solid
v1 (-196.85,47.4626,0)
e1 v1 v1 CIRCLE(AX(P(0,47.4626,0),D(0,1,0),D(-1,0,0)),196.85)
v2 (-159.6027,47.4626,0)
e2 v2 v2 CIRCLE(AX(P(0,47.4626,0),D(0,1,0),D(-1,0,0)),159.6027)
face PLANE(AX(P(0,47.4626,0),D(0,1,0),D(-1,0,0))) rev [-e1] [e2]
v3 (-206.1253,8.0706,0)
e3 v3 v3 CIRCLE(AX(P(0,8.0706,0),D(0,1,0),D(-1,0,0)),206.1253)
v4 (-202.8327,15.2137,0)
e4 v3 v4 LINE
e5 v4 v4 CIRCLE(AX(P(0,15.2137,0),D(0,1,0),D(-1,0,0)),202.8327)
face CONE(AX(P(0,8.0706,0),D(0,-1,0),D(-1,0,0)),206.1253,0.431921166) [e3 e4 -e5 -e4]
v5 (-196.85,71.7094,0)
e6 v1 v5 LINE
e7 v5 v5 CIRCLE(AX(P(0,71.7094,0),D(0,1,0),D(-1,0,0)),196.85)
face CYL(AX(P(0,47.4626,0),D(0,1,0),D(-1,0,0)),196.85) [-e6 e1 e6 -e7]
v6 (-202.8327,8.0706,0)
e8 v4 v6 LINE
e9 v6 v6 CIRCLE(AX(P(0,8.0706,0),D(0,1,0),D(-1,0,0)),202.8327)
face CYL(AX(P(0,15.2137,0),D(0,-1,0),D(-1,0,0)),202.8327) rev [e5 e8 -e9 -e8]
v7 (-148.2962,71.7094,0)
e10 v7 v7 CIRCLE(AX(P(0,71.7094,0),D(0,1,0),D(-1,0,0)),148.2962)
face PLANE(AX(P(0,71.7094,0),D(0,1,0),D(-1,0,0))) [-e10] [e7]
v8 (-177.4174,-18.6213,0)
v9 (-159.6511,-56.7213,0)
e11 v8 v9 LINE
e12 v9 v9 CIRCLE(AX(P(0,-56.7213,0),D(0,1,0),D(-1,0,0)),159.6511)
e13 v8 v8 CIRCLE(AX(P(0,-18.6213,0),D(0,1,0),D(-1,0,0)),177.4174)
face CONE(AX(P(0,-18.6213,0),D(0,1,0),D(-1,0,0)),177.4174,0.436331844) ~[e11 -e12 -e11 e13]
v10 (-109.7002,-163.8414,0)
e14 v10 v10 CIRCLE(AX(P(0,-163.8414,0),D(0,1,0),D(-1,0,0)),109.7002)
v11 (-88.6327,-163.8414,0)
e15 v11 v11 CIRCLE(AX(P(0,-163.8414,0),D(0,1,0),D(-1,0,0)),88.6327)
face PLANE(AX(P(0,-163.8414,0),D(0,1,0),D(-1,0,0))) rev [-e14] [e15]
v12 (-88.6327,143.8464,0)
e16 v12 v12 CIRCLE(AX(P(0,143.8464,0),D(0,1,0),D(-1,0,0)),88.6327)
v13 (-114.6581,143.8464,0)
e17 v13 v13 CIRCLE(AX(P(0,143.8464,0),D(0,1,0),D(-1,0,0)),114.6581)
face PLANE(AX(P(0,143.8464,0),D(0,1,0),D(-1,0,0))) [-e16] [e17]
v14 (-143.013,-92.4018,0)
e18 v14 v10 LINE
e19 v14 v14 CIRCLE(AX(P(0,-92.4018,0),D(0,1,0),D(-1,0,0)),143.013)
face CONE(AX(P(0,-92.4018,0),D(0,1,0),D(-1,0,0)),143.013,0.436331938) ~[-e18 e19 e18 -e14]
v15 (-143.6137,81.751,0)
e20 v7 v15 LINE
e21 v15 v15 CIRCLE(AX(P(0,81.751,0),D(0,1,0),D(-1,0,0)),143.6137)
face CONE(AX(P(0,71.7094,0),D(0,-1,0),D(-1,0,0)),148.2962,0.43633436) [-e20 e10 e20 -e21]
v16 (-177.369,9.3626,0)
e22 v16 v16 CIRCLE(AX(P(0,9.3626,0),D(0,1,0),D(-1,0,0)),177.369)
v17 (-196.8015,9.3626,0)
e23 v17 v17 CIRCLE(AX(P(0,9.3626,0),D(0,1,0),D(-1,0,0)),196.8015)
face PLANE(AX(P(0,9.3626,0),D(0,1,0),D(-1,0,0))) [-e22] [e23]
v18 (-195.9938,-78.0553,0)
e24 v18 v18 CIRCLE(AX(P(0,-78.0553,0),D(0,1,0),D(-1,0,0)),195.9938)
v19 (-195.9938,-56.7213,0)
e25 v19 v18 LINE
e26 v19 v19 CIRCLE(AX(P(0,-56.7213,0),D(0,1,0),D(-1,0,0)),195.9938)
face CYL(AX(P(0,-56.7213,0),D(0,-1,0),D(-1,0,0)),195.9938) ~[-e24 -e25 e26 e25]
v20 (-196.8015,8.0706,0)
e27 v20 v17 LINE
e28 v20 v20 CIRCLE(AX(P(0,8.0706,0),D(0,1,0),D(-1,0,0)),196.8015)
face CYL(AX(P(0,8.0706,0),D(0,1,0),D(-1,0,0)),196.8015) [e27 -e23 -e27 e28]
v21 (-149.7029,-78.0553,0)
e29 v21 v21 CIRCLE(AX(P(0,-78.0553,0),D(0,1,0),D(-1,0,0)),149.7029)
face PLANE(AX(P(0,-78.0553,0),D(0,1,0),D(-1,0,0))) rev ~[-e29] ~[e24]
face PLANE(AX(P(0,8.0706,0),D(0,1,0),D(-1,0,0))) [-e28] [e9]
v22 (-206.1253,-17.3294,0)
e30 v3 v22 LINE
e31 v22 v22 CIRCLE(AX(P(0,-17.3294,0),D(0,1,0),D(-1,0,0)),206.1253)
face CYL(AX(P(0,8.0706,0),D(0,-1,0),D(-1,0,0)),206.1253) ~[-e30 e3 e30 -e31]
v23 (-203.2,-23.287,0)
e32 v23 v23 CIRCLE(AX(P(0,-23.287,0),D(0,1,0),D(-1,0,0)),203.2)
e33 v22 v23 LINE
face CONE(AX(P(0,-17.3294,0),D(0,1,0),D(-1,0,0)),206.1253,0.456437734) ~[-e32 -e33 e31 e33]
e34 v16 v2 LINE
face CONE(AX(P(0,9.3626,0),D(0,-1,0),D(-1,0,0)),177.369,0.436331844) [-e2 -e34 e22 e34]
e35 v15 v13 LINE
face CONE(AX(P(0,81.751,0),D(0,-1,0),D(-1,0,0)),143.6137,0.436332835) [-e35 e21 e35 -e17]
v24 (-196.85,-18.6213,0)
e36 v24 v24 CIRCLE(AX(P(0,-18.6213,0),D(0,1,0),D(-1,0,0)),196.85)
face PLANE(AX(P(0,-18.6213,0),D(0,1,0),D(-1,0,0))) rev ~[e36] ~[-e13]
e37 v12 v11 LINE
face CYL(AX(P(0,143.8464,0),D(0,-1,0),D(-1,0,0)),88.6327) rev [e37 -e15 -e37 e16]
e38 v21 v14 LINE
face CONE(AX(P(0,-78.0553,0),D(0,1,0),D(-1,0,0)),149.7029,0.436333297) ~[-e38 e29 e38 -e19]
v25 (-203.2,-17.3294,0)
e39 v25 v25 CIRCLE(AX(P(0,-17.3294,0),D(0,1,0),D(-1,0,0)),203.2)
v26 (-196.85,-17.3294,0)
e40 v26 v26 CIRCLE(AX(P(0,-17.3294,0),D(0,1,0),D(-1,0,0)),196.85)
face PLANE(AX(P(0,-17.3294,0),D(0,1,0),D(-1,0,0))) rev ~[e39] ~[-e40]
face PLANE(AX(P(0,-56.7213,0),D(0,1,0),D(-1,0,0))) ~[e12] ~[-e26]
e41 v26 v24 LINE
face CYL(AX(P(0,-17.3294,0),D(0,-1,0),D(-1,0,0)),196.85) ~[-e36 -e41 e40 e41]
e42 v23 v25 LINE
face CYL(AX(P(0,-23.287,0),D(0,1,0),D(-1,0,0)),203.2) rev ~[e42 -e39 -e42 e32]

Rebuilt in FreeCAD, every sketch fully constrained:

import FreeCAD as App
import Part
import Sketcher

V = App.Vector
Q = App.Units.Quantity

doc = App.newDocument("Part")
body = doc.addObject("PartDesign::Body", "Body")

sketch1 = body.newObject("Sketcher::SketchObject", "Sketch")
sketch1.AttachmentSupport = (doc.getObject("XY_Plane"), [""])
sketch1.MapMode = "FlatFace"
sketch1.addGeometry(Part.LineSegment(V(-202.8, 15.2, 0), V(-206.1, 8.1, 0)), False)
sketch1.addGeometry(Part.LineSegment(V(-206.1, 8.1, 0), V(-206.1, -17.3, 0)), False)
sketch1.addGeometry(Part.LineSegment(V(-206.1, -17.3, 0), V(-203.2, -23.3, 0)), False)
sketch1.addGeometry(Part.LineSegment(V(-203.2, -23.3, 0), V(-203.2, -17.3, 0)), False)
sketch1.addGeometry(Part.LineSegment(V(-203.2, -17.3, 0), V(-196.8, -17.3, 0)), False)
sketch1.addGeometry(Part.LineSegment(V(-196.8, -17.3, 0), V(-196.8, -18.6, 0)), False)
sketch1.addGeometry(Part.LineSegment(V(-196.8, -18.6, 0), V(-177.4, -18.6, 0)), False)
sketch1.addGeometry(Part.LineSegment(V(-177.4, -18.6, 0), V(-159.7, -56.7, 0)), False)
sketch1.addGeometry(Part.LineSegment(V(-159.7, -56.7, 0), V(-196, -56.7, 0)), False)
sketch1.addGeometry(Part.LineSegment(V(-196, -56.7, 0), V(-196, -78.1, 0)), False)
sketch1.addGeometry(Part.LineSegment(V(-196, -78.1, 0), V(-149.7, -78.1, 0)), False)
sketch1.addGeometry(Part.LineSegment(V(-149.7, -78.1, 0), V(-143, -92.4, 0)), False)
sketch1.addGeometry(Part.LineSegment(V(-143, -92.4, 0), V(-109.7, -163.8, 0)), False)
sketch1.addGeometry(Part.LineSegment(V(-109.7, -163.8, 0), V(-88.6, -163.8, 0)), False)
sketch1.addGeometry(Part.LineSegment(V(-88.6, -163.8, 0), V(-88.6, 143.8, 0)), False)
sketch1.addGeometry(Part.LineSegment(V(-88.6, 143.8, 0), V(-114.7, 143.8, 0)), False)
sketch1.addGeometry(Part.LineSegment(V(-114.7, 143.8, 0), V(-143.6, 81.8, 0)), False)
sketch1.addGeometry(Part.LineSegment(V(-143.6, 81.8, 0), V(-148.3, 71.7, 0)), False)
sketch1.addGeometry(Part.LineSegment(V(-148.3, 71.7, 0), V(-196.8, 71.7, 0)), False)
sketch1.addGeometry(Part.LineSegment(V(-196.8, 71.7, 0), V(-196.8, 47.5, 0)), False)
sketch1.addGeometry(Part.LineSegment(V(-196.8, 47.5, 0), V(-159.6, 47.5, 0)), False)
sketch1.addGeometry(Part.LineSegment(V(-159.6, 47.5, 0), V(-177.4, 9.4, 0)), False)
sketch1.addGeometry(Part.LineSegment(V(-177.4, 9.4, 0), V(-196.8, 9.4, 0)), False)
sketch1.addGeometry(Part.LineSegment(V(-196.8, 9.4, 0), V(-196.8, 8.1, 0)), False)
sketch1.addGeometry(Part.LineSegment(V(-196.8, 8.1, 0), V(-202.8, 8.1, 0)), False)
sketch1.addGeometry(Part.LineSegment(V(-202.8, 8.1, 0), V(-202.8, 15.2, 0)), False)
sketch1.addConstraint(Sketcher.Constraint("Coincident", 0, 2, 1, 1))
sketch1.addConstraint(Sketcher.Constraint("Coincident", 1, 2, 2, 1))
sketch1.addConstraint(Sketcher.Constraint("Coincident", 2, 2, 3, 1))
sketch1.addConstraint(Sketcher.Constraint("Coincident", 3, 2, 4, 1))
sketch1.addConstraint(Sketcher.Constraint("Coincident", 4, 2, 5, 1))
sketch1.addConstraint(Sketcher.Constraint("Coincident", 5, 2, 6, 1))
sketch1.addConstraint(Sketcher.Constraint("Coincident", 6, 2, 7, 1))
sketch1.addConstraint(Sketcher.Constraint("Coincident", 7, 2, 8, 1))
sketch1.addConstraint(Sketcher.Constraint("Coincident", 8, 2, 9, 1))
sketch1.addConstraint(Sketcher.Constraint("Coincident", 9, 2, 10, 1))
sketch1.addConstraint(Sketcher.Constraint("Coincident", 10, 2, 11, 1))
sketch1.addConstraint(Sketcher.Constraint("Coincident", 11, 2, 12, 1))
sketch1.addConstraint(Sketcher.Constraint("Coincident", 12, 2, 13, 1))
sketch1.addConstraint(Sketcher.Constraint("Coincident", 13, 2, 14, 1))
sketch1.addConstraint(Sketcher.Constraint("Coincident", 14, 2, 15, 1))
sketch1.addConstraint(Sketcher.Constraint("Coincident", 15, 2, 16, 1))
sketch1.addConstraint(Sketcher.Constraint("Coincident", 16, 2, 17, 1))
sketch1.addConstraint(Sketcher.Constraint("Coincident", 17, 2, 18, 1))
sketch1.addConstraint(Sketcher.Constraint("Coincident", 18, 2, 19, 1))
sketch1.addConstraint(Sketcher.Constraint("Coincident", 19, 2, 20, 1))
sketch1.addConstraint(Sketcher.Constraint("Coincident", 20, 2, 21, 1))
sketch1.addConstraint(Sketcher.Constraint("Coincident", 21, 2, 22, 1))
sketch1.addConstraint(Sketcher.Constraint("Coincident", 22, 2, 23, 1))
sketch1.addConstraint(Sketcher.Constraint("Coincident", 23, 2, 24, 1))
sketch1.addConstraint(Sketcher.Constraint("Coincident", 24, 2, 25, 1))
sketch1.addConstraint(Sketcher.Constraint("Coincident", 25, 2, 0, 1))
sketch1.addConstraint(Sketcher.Constraint("Vertical", 1))
sketch1.addConstraint(Sketcher.Constraint("Vertical", 3))
sketch1.addConstraint(Sketcher.Constraint("Horizontal", 4))
sketch1.addConstraint(Sketcher.Constraint("Vertical", 5))
sketch1.addConstraint(Sketcher.Constraint("Horizontal", 6))
sketch1.addConstraint(Sketcher.Constraint("Horizontal", 8))
sketch1.addConstraint(Sketcher.Constraint("Vertical", 9))
sketch1.addConstraint(Sketcher.Constraint("Horizontal", 10))
sketch1.addConstraint(Sketcher.Constraint("Horizontal", 13))
sketch1.addConstraint(Sketcher.Constraint("Vertical", 14))
sketch1.addConstraint(Sketcher.Constraint("Horizontal", 15))
sketch1.addConstraint(Sketcher.Constraint("Horizontal", 18))
sketch1.addConstraint(Sketcher.Constraint("Vertical", 19))
sketch1.addConstraint(Sketcher.Constraint("Horizontal", 20))
sketch1.addConstraint(Sketcher.Constraint("Horizontal", 22))
sketch1.addConstraint(Sketcher.Constraint("Vertical", 23))
sketch1.addConstraint(Sketcher.Constraint("Horizontal", 24))
sketch1.addConstraint(Sketcher.Constraint("Vertical", 25))
sketch1.addConstraint(Sketcher.Constraint("Parallel", 7, 11))
sketch1.addConstraint(Sketcher.Constraint("Parallel", 11, 12))
sketch1.addConstraint(Sketcher.Constraint("Parallel", 16, 17))
sketch1.addConstraint(Sketcher.Constraint("Parallel", 17, 21))
sketch1.addConstraint(Sketcher.Constraint("Horizontal", 1, 2, 3, 2))
sketch1.addConstraint(Sketcher.Constraint("Horizontal", 0, 2, 23, 2))
sketch1.addConstraint(Sketcher.Constraint("Vertical", 5, 2, 18, 2))
sketch1.addConstraint(Sketcher.Constraint("Equal", 6, 22))
sketch1.addConstraint(Sketcher.Constraint("Equal", 5, 23))
sketch1.addConstraint(Sketcher.Constraint("Equal", 7, 21))
sketch1.addConstraint(Sketcher.Constraint("DistanceY", 1, 2, 1, 1, Q("1 in")))
sketch1.addConstraint(Sketcher.Constraint("DistanceX", 2, 2, -1, 1, Q("8 in")))
sketch1.addConstraint(Sketcher.Constraint("Angle", 16, Q("-115 deg")))
sketch1.addConstraint(Sketcher.Constraint("DistanceX", 4, 1, 4, 2, Q("0.25 in")))
sketch1.addConstraint(Sketcher.Constraint("DistanceY", 7, 2, 6, 2, Q("1.5 in")))
sketch1.addConstraint(Sketcher.Constraint("Angle", 7, Q("-65 deg")))
sketch1.addConstraint(Sketcher.Constraint("DistanceY", 14, 1, 14, 2, Q("12.1137 in")))
sketch1.addConstraint(Sketcher.Constraint("DistanceY", 19, 2, 19, 1, Q("0.9546 in")))
sketch1.addConstraint(Sketcher.Constraint("DistanceX", 7, 2, 13, 2, Q("2.796 in")))
sketch1.addConstraint(Sketcher.Constraint("Distance", 2, Q("0.2613 in")))
sketch1.addConstraint(Sketcher.Constraint("Distance", 17, Q("0.4362 in")))
sketch1.addConstraint(Sketcher.Constraint("DistanceX", 6, 1, 6, 2, 19.4326))
sketch1.addConstraint(Sketcher.Constraint("DistanceX", 8, 2, 8, 1, 36.3427))
sketch1.addConstraint(Sketcher.Constraint("DistanceX", 10, 1, 10, 2, 46.291))
sketch1.addConstraint(Sketcher.Constraint("DistanceX", 13, 1, 13, 2, 21.0675))
sketch1.addConstraint(Sketcher.Constraint("DistanceX", 15, 2, 15, 1, 26.0254))
sketch1.addConstraint(Sketcher.Constraint("DistanceX", 18, 2, 18, 1, 48.5538))
sketch1.addConstraint(Sketcher.Constraint("DistanceX", 20, 1, 20, 2, 37.2473))
sketch1.addConstraint(Sketcher.Constraint("DistanceX", 24, 2, 24, 1, 6.0312))
sketch1.addConstraint(Sketcher.Constraint("DistanceY", 3, 1, 3, 2, 5.9576))
sketch1.addConstraint(Sketcher.Constraint("DistanceY", 5, 2, 5, 1, 1.292))
sketch1.addConstraint(Sketcher.Constraint("DistanceY", 25, 1, 25, 2, 7.143))
sketch1.addConstraint(Sketcher.Constraint("DistanceY", 2, 2, -1, 1, Q("0.9168 in")))
sketch1.addConstraint(Sketcher.Constraint("DistanceX", 6, 2, 11, 2, Q("1.3545 in")))
revolution = body.newObject("PartDesign::Revolution", "Revolution")
revolution.Profile = sketch1
revolution.ReferenceAxis = (sketch1, ["V_Axis"])
revolution.Angle = 360

doc.recompute()
